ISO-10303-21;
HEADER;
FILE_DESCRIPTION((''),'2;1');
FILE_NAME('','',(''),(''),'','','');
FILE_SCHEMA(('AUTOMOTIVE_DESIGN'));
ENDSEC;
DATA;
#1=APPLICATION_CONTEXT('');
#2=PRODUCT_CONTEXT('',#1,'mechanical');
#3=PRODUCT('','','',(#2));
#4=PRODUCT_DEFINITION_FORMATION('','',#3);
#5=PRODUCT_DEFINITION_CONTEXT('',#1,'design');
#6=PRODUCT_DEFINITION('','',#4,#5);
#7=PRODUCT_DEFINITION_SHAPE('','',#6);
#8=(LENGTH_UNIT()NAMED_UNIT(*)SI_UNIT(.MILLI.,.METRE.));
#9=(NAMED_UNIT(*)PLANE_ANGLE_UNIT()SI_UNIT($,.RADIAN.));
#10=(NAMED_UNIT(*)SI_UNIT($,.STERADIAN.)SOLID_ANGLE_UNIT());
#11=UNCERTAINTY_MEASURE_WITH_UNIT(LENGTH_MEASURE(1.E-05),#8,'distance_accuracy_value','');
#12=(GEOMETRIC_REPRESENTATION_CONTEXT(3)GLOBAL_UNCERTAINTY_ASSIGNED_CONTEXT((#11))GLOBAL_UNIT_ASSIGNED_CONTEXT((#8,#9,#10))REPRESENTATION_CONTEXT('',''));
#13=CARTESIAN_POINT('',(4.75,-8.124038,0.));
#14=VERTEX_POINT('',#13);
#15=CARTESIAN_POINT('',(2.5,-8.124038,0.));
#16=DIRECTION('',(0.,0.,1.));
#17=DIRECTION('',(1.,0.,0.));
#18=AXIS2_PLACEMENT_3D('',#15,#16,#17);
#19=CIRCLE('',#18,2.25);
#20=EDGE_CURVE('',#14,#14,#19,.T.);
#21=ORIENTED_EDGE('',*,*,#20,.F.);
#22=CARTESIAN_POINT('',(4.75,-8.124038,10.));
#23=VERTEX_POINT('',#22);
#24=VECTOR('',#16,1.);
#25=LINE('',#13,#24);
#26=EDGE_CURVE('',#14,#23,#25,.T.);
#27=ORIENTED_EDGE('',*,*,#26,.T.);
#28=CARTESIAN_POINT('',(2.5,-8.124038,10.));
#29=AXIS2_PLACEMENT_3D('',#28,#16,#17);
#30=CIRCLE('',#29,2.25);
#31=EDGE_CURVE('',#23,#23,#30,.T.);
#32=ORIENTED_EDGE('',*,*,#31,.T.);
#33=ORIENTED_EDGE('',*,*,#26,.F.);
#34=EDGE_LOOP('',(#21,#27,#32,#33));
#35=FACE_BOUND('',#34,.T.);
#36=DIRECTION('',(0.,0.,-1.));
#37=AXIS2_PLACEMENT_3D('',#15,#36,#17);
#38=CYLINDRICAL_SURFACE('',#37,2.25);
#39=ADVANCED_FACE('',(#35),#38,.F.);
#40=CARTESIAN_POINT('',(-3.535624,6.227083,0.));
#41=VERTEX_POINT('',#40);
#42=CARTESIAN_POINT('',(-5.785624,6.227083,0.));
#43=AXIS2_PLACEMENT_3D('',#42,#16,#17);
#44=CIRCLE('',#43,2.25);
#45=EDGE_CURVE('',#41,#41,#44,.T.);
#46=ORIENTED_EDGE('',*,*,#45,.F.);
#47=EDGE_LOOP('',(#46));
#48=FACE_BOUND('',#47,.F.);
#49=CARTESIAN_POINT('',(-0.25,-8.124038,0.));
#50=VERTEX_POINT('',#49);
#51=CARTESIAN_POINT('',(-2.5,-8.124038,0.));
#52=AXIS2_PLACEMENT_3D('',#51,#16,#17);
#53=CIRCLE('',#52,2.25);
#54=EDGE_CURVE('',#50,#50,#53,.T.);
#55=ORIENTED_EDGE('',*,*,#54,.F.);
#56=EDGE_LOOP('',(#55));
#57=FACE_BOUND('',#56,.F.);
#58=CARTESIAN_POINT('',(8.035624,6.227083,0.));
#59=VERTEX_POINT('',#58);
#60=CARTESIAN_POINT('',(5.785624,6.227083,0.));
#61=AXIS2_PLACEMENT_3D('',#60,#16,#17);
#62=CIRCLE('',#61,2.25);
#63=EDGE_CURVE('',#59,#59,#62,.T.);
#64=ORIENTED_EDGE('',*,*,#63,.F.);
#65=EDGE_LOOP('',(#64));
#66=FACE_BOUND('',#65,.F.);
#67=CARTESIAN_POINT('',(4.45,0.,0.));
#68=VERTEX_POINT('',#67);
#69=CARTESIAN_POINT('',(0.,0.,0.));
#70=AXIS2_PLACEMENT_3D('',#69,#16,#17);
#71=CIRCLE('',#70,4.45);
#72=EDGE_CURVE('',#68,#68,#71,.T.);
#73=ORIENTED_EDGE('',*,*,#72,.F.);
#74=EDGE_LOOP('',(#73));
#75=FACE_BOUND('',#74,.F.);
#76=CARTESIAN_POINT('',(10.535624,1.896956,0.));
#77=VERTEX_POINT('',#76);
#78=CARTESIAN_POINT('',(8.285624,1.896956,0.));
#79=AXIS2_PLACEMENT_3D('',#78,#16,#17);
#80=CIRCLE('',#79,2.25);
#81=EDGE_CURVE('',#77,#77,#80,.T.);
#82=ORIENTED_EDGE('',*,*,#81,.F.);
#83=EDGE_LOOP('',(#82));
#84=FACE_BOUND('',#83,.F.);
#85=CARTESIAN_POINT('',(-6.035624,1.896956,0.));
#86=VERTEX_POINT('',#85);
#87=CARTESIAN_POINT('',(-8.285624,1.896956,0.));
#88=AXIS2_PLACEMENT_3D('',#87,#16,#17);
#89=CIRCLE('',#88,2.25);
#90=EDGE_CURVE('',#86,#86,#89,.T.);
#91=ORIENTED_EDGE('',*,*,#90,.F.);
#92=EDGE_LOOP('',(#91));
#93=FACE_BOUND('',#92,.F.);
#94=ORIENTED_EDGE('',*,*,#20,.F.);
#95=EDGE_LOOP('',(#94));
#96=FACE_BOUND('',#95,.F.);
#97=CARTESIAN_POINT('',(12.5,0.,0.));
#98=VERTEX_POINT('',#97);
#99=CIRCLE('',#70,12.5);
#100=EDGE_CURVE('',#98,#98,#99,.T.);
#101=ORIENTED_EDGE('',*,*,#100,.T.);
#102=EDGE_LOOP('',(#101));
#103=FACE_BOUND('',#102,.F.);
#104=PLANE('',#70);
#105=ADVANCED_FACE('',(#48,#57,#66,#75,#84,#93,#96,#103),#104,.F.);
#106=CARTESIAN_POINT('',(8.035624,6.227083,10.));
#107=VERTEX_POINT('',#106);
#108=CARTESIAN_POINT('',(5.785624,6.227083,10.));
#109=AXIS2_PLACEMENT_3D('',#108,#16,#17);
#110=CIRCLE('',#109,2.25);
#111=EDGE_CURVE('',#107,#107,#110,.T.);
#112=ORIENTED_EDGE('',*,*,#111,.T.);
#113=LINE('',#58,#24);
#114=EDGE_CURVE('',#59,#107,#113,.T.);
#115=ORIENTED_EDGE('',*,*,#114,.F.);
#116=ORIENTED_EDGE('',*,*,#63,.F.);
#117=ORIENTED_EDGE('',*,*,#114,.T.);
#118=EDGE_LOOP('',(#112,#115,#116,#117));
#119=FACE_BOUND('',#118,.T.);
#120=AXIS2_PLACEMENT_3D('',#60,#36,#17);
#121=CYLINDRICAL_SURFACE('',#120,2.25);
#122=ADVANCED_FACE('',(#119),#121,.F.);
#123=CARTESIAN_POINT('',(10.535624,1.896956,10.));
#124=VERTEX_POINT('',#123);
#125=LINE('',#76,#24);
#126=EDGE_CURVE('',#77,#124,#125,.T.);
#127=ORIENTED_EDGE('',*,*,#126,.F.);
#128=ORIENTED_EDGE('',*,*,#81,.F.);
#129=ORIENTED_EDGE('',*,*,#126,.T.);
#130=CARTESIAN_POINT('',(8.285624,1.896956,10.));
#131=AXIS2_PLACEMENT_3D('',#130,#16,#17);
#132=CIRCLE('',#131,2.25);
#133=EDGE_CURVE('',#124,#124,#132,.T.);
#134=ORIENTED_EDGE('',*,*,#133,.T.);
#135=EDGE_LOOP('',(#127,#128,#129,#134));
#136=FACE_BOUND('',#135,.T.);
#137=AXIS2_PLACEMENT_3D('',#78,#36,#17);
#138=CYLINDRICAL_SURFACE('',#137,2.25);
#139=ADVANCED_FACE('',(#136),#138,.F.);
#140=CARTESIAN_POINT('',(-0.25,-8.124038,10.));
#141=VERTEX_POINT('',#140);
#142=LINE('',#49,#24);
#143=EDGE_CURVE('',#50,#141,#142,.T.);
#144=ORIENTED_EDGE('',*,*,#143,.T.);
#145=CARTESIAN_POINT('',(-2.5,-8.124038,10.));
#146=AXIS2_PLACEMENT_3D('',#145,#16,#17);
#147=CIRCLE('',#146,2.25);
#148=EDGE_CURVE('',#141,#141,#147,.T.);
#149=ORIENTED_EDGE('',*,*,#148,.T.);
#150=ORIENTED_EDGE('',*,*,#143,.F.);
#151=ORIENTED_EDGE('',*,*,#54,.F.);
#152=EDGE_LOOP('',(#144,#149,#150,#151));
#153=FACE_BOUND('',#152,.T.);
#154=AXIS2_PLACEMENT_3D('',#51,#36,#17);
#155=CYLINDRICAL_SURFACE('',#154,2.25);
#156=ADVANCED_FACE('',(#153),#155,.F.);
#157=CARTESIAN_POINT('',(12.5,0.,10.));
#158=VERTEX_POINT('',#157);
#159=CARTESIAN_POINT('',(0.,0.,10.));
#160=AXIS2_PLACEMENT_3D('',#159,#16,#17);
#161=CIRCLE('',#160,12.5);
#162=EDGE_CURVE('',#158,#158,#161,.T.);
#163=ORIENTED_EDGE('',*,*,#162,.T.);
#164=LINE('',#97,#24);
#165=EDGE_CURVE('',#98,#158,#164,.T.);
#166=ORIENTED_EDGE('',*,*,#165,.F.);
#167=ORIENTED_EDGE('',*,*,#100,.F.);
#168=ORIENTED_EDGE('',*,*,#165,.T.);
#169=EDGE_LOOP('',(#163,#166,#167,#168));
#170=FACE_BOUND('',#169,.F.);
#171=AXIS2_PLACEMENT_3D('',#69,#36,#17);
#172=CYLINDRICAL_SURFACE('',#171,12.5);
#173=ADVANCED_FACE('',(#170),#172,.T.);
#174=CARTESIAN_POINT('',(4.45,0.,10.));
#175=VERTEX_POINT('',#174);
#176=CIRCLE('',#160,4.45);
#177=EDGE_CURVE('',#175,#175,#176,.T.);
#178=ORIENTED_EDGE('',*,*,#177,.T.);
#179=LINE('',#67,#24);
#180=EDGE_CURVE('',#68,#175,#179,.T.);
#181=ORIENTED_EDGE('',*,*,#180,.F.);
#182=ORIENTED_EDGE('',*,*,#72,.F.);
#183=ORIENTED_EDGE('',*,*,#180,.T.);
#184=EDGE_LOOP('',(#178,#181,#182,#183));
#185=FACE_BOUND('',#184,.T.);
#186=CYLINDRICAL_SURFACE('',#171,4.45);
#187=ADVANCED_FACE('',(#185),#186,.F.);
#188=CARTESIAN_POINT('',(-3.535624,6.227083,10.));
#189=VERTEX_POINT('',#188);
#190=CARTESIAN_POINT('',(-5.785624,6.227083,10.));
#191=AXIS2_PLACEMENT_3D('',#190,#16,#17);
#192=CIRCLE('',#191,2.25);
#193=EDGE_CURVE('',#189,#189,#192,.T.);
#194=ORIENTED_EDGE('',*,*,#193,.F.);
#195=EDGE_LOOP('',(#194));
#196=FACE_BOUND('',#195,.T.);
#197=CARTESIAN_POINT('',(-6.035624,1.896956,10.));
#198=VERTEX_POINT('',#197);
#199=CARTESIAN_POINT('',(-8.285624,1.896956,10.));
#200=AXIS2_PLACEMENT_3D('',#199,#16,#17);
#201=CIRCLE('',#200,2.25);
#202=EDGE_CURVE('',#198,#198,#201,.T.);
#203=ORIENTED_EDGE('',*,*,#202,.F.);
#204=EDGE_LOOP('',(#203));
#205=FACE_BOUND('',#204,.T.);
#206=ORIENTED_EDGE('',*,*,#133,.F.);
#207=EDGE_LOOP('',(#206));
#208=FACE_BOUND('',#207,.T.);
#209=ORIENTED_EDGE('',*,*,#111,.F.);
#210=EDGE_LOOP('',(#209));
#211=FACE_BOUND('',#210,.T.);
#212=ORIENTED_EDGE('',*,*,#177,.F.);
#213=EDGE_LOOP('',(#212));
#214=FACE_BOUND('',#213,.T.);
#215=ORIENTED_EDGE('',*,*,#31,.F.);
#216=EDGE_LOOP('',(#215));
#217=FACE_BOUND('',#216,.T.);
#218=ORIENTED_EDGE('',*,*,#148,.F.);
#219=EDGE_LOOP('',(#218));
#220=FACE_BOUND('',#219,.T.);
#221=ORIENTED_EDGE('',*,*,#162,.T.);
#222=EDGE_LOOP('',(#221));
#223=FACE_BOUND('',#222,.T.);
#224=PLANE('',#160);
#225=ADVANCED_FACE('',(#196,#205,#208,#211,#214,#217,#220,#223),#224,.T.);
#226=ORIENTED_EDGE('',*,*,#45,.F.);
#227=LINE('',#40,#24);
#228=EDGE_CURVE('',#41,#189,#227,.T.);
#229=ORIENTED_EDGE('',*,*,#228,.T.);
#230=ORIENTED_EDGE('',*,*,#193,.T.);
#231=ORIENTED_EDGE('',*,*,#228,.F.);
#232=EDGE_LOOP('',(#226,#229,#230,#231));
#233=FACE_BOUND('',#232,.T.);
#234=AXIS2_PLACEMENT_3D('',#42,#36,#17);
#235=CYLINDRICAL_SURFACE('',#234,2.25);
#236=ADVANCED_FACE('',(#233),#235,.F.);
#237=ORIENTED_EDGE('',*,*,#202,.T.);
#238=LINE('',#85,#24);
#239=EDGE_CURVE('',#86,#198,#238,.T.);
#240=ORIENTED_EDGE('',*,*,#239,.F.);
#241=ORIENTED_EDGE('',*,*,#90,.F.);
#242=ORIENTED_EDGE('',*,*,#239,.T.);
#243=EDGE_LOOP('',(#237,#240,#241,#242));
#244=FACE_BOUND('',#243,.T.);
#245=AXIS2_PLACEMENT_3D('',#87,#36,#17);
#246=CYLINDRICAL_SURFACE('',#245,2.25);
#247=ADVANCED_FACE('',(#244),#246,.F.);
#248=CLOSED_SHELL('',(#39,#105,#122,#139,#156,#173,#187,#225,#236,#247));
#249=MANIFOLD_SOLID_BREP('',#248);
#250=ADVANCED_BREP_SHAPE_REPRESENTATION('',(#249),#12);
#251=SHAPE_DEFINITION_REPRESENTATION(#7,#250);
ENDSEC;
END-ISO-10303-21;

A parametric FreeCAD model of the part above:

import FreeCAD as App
import Part
import Sketcher
from FreeCAD import Vector
Q = App.Units.Quantity

doc = App.newDocument("Part")
body = doc.addObject("PartDesign::Body", "Body")

# Sketch on XY plane
sketch1 = body.newObject("Sketcher::SketchObject", "Sketch")
sketch1.AttachmentSupport = (doc.getObject("XY_Plane"), [""])
sketch1.MapMode = "FlatFace"
sketch1.addGeometry([
    Part.Circle(Vector(0, 0, 0), Vector(0, 0, 1), 12.5),  # 0
    Part.Circle(Vector(-2.5, -8.124038, 0), Vector(0, 0, 1), 2.25),  # 1
    Part.Circle(Vector(2.5, -8.124038, 0), Vector(0, 0, 1), 2.25),  # 2
    Part.Circle(Vector(-8.285624, 1.896956, 0), Vector(0, 0, 1), 2.25),  # 3
    Part.Circle(Vector(-5.785624, 6.227083, 0), Vector(0, 0, 1), 2.25),  # 4
    Part.Circle(Vector(0, 0, 0), Vector(0, 0, 1), 4.45),  # 5
    Part.Circle(Vector(8.285624, 1.896956, 0), Vector(0, 0, 1), 2.25),  # 6
    Part.Circle(Vector(5.785624, 6.227083, 0), Vector(0, 0, 1), 2.25),  # 7
], False)
sketch1.addConstraint([
    Sketcher.Constraint("Coincident", 0, 3, -1, 1),
    Sketcher.Constraint("Coincident", 5, 3, -1, 1),
    Sketcher.Constraint("Equal", 1, 2),
    Sketcher.Constraint("Equal", 2, 3),
    Sketcher.Constraint("Equal", 3, 4),
    Sketcher.Constraint("Equal", 4, 6),
    Sketcher.Constraint("Equal", 6, 7),
    Sketcher.Constraint("Symmetric", 1, 3, 2, 3, -2),
    Sketcher.Constraint("Symmetric", 3, 3, 6, 3, -2),
    Sketcher.Constraint("Symmetric", 4, 3, 7, 3, -2),
    Sketcher.Constraint("Diameter", 0, Q("25 mm")),
    Sketcher.Constraint("Diameter", 1, Q("4.5 mm")),
    Sketcher.Constraint("Diameter", 5, Q("8.9 mm")),
    Sketcher.Constraint("DistanceX", 1, 3, 2, 3, Q("5 mm")),
    Sketcher.Constraint("DistanceX", 3, 3, 4, 3, Q("2.5 mm")),
    Sketcher.Constraint("DistanceY", 1, 3, 4, 3, Q("14.351121 mm")),
    Sketcher.Constraint("DistanceX", 4, 3, 6, 3, Q("14.071248 mm")),
    Sketcher.Constraint("DistanceY", 1, 3, -1, 1, Q("8.124038 mm")),
    Sketcher.Constraint("DistanceY", -1, 1, 3, 3, Q("1.896956 mm")),
])
pad1 = body.newObject("PartDesign::Pad", "Pad")
pad1.Profile = sketch1
pad1.Length = 10

doc.recompute()
